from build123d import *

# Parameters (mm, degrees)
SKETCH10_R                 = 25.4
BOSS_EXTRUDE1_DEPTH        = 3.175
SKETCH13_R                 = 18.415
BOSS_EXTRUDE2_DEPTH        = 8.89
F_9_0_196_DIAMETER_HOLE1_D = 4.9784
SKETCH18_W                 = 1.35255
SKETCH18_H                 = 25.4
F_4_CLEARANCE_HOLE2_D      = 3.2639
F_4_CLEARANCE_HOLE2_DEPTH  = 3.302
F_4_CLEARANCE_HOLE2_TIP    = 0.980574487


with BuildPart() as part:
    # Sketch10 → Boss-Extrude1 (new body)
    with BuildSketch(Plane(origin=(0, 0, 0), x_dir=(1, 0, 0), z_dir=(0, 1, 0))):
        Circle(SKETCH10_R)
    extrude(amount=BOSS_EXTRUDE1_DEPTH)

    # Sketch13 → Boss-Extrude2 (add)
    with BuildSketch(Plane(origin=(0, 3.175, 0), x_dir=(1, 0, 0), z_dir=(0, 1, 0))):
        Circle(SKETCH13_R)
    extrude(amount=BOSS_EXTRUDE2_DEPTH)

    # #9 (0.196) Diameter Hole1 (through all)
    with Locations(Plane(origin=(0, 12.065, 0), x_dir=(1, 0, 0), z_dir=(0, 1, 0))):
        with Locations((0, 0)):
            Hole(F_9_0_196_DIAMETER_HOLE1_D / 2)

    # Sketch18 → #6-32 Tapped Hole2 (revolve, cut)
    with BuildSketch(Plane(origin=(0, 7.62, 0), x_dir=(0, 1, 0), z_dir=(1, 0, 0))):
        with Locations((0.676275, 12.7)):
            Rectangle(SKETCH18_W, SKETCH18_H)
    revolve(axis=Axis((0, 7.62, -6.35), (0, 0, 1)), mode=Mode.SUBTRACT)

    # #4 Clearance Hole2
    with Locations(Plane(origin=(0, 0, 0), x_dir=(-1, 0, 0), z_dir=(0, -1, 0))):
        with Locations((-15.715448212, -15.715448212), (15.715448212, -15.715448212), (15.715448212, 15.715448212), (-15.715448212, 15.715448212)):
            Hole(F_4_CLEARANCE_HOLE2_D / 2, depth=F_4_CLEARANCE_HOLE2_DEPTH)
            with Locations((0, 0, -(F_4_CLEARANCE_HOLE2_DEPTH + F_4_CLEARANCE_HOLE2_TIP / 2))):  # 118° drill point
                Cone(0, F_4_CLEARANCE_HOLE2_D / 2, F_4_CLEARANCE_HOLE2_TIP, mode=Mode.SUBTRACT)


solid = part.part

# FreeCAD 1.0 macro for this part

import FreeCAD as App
import Part
import Sketcher

V = App.Vector
Q = App.Units.Quantity

doc = App.newDocument("Part")
body = doc.addObject("PartDesign::Body", "Body")

# Sketch on XZ plane
sketch1 = doc.addObject("Sketcher::SketchObject", "Sketch")
body.addObject(sketch1)
sketch1.AttachmentSupport = (doc.XZ_Plane, [""])
sketch1.MapMode = "FlatFace"
sketch1.addGeometry(Part.Circle(V(0, 0, 0), V(0, 0, 1), 25), False)
sketch1.addConstraint([
    Sketcher.Constraint("Coincident", 0, 3, -1, 1),
    Sketcher.Constraint("Diameter", 0, Q("2 in")),
])
pad1 = doc.addObject("PartDesign::Pad", "Pad")
body.addObject(pad1)
pad1.Profile = sketch1
pad1.Length = Q("0.125 in")
pad1.Reversed = True

# Sketch on XZ plane
sketch2 = doc.addObject("Sketcher::SketchObject", "Sketch001")
body.addObject(sketch2)
sketch2.AttachmentSupport = (doc.XZ_Plane, [""])
sketch2.MapMode = "FlatFace"
sketch2.AttachmentOffset = App.Placement(V(0, 0, -0.125 * 25.4), App.Rotation())
sketch2.addGeometry(Part.Circle(V(0, 0, 0), V(0, 0, 1), 18), False)
sketch2.addConstraint([
    Sketcher.Constraint("Coincident", 0, 3, -1, 1),
    Sketcher.Constraint("Diameter", 0, Q("1.45 in")),
])
pad2 = doc.addObject("PartDesign::Pad", "Pad001")
body.addObject(pad2)
pad2.Profile = sketch2
pad2.Length = Q("0.35 in")
pad2.Reversed = True

# Sketch on XZ plane
sketch3 = doc.addObject("Sketcher::SketchObject", "Sketch002")
body.addObject(sketch3)
sketch3.AttachmentSupport = (doc.XZ_Plane, [""])
sketch3.MapMode = "FlatFace"
sketch3.AttachmentOffset = App.Placement(V(0, 0, -0.475 * 25.4), App.Rotation())
sketch3.addGeometry(Part.Circle(V(0, 0, 0), V(0, 0, 1), 2.5), False)
sketch3.addConstraint([
    Sketcher.Constraint("Coincident", 0, 3, -1, 1),
    Sketcher.Constraint("Diameter", 0, Q("0.196 in")),
])
doc.recompute()
hole = doc.addObject("PartDesign::Hole", "Hole")
body.addObject(hole)
hole.Profile = sketch3
hole.ThreadType = "None"
hole.Diameter = Q("0.196 in")
hole.DepthType = "ThroughAll"
hole.Reversed = True

# Sketch on YZ plane
sketch4 = doc.addObject("Sketcher::SketchObject", "Sketch003")
body.addObject(sketch4)
sketch4.AttachmentSupport = (doc.YZ_Plane, [""])
sketch4.MapMode = "FlatFace"
sketch4.addGeometry([
    Part.LineSegment(V(7.6, 25.4, 0), V(7.6, 0, 0)),
    Part.LineSegment(V(7.6, 0, 0), V(9, 0, 0)),
    Part.LineSegment(V(9, 0, 0), V(9, 25.4, 0)),
    Part.LineSegment(V(9, 25.4, 0), V(7.6, 25.4, 0)),
], False)
sketch4.addGeometry(Part.LineSegment(V(7.6, 0, 0), V(7.6, 25.4, 0)), True)  # axis
sketch4.addConstraint([
    Sketcher.Constraint("Coincident", 0, 2, 1, 1),
    Sketcher.Constraint("Coincident", 1, 2, 2, 1),
    Sketcher.Constraint("Coincident", 2, 2, 3, 1),
    Sketcher.Constraint("Coincident", 3, 2, 0, 1),
    Sketcher.Constraint("Vertical", 0),
    Sketcher.Constraint("Horizontal", 1),
    Sketcher.Constraint("Vertical", 2),
    Sketcher.Constraint("Horizontal", 3),
    Sketcher.Constraint("Vertical", 4),
    Sketcher.Constraint("Coincident", 4, 1, 0, 2),
    Sketcher.Constraint("PointOnObject", 0, 2, -1),
    Sketcher.Constraint("Horizontal", 2, 2, 4, 2),
    Sketcher.Constraint("DistanceY", 0, 2, 0, 1, Q("1 in")),
    Sketcher.Constraint("DistanceX", -1, 1, 0, 2, Q("0.3 in")),
    Sketcher.Constraint("DistanceX", 1, 1, 1, 2, 1.35255),
])
groove = doc.addObject("PartDesign::Groove", "Groove")
body.addObject(groove)
groove.Profile = sketch4
groove.ReferenceAxis = (sketch4, ["Axis0"])
groove.Angle = 360

# Sketch on XZ plane
sketch5 = doc.addObject("Sketcher::SketchObject", "Sketch004")
body.addObject(sketch5)
sketch5.AttachmentSupport = (doc.XZ_Plane, [""])
sketch5.MapMode = "FlatFace"
sketch5.addGeometry([
    Part.Circle(V(15.7, 15.7, 0), V(0, 0, 1), 1.6),
    Part.Circle(V(-15.7, 15.7, 0), V(0, 0, 1), 1.6),
    Part.Circle(V(-15.7, -15.7, 0), V(0, 0, 1), 1.6),
    Part.Circle(V(15.7, -15.7, 0), V(0, 0, 1), 1.6),
], False)
sketch5.addConstraint([
    Sketcher.Constraint("Equal", 0, 1),
    Sketcher.Constraint("Equal", 1, 2),
    Sketcher.Constraint("Equal", 2, 3),
    Sketcher.Constraint("Symmetric", 0, 3, 2, 3, -1, 1),
    Sketcher.Constraint("Symmetric", 1, 3, 3, 3, -1, 1),
    Sketcher.Constraint("Symmetric", 0, 3, 1, 3, -2),
    Sketcher.Constraint("Diameter", 0, Q("0.1285 in")),
    Sketcher.Constraint("DistanceX", -1, 1, 0, 3, 15.715448),
    Sketcher.Constraint("DistanceY", -1, 1, 0, 3, 15.715448),
])
doc.recompute()
hole2 = doc.addObject("PartDesign::Hole", "Hole001")
body.addObject(hole2)
hole2.Profile = sketch5
hole2.ThreadType = "None"
hole2.Diameter = Q("0.1285 in")
hole2.DepthType = "Dimension"
hole2.Depth = Q("0.13 in")
hole2.DrillPoint = "Angled"
hole2.DrillPointAngle = 118

doc.recompute()
